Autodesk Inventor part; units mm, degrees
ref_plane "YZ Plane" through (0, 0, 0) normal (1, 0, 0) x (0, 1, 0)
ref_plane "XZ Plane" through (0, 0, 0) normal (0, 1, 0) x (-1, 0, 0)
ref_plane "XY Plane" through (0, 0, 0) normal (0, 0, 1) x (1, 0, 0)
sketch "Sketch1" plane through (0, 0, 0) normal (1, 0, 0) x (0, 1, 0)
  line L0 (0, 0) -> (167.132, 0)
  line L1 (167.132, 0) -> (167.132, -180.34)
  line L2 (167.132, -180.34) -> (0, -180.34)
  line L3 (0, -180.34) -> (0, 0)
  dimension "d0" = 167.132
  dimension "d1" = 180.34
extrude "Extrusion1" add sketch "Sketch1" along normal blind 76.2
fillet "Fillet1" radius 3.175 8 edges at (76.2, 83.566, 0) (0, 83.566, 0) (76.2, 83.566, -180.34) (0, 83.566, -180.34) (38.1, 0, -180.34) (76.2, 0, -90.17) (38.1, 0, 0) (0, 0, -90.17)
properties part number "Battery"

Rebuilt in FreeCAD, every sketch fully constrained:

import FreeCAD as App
import Part
import Sketcher
Q = App.Units.Quantity


def edges_at(feature, points):
    """Names of the edges that pass closest to the given points."""
    edges = feature.Shape.Edges
    near = lambda p: min(range(len(edges)), key=lambda i: edges[i].distToShape(Part.Vertex(*p))[0])
    return sorted({f"Edge{near(p) + 1}" for p in points})

doc = App.newDocument("Part")
body = doc.addObject("PartDesign::Body", "Body")

# Sketch on YZ plane
sketch1 = body.newObject("Sketcher::SketchObject", "Sketch")
sketch1.AttachmentSupport = (doc.getObject("YZ_Plane"), [""])
sketch1.MapMode = "FlatFace"
sketch1.addGeometry([
    Part.LineSegment(App.Vector(167.132, 0, 0), App.Vector(0, 0, 0)),
    Part.LineSegment(App.Vector(0, 0, 0), App.Vector(0, -180.34, 0)),
    Part.LineSegment(App.Vector(0, -180.34, 0), App.Vector(167.132, -180.34, 0)),
    Part.LineSegment(App.Vector(167.132, -180.34, 0), App.Vector(167.132, 0, 0)),
], False)
sketch1.addConstraint([
    Sketcher.Constraint("Coincident", 0, 2, 1, 1),
    Sketcher.Constraint("Coincident", 1, 2, 2, 1),
    Sketcher.Constraint("Coincident", 2, 2, 3, 1),
    Sketcher.Constraint("Coincident", 3, 2, 0, 1),
    Sketcher.Constraint("Horizontal", 0),
    Sketcher.Constraint("Vertical", 1),
    Sketcher.Constraint("Horizontal", 2),
    Sketcher.Constraint("Vertical", 3),
    Sketcher.Constraint("Coincident", 0, 2, -1, 1),
    Sketcher.Constraint("DistanceY", 1, 2, 1, 1, Q("7.1 in")),
    Sketcher.Constraint("DistanceX", 0, 2, 0, 1, Q("6.58 in")),
])
pad1 = body.newObject("PartDesign::Pad", "Pad")
pad1.Profile = sketch1
pad1.Length = Q("3 in")
doc.recompute()

fillet = body.newObject("PartDesign::Fillet", "Fillet")
fillet.Base = (pad1, edges_at(pad1, [
    (76.2, 83.566, 0),
    (0, 83.566, 0),
    (76.2, 83.566, -180.34),
    (0, 83.566, -180.34),
    (38.1, 0, -180.34),
    (76.2, 0, -90.17),
    (38.1, 0, 0),
    (0, 0, -90.17),
]))
fillet.Radius = Q("0.125 in")

doc.recompute()
